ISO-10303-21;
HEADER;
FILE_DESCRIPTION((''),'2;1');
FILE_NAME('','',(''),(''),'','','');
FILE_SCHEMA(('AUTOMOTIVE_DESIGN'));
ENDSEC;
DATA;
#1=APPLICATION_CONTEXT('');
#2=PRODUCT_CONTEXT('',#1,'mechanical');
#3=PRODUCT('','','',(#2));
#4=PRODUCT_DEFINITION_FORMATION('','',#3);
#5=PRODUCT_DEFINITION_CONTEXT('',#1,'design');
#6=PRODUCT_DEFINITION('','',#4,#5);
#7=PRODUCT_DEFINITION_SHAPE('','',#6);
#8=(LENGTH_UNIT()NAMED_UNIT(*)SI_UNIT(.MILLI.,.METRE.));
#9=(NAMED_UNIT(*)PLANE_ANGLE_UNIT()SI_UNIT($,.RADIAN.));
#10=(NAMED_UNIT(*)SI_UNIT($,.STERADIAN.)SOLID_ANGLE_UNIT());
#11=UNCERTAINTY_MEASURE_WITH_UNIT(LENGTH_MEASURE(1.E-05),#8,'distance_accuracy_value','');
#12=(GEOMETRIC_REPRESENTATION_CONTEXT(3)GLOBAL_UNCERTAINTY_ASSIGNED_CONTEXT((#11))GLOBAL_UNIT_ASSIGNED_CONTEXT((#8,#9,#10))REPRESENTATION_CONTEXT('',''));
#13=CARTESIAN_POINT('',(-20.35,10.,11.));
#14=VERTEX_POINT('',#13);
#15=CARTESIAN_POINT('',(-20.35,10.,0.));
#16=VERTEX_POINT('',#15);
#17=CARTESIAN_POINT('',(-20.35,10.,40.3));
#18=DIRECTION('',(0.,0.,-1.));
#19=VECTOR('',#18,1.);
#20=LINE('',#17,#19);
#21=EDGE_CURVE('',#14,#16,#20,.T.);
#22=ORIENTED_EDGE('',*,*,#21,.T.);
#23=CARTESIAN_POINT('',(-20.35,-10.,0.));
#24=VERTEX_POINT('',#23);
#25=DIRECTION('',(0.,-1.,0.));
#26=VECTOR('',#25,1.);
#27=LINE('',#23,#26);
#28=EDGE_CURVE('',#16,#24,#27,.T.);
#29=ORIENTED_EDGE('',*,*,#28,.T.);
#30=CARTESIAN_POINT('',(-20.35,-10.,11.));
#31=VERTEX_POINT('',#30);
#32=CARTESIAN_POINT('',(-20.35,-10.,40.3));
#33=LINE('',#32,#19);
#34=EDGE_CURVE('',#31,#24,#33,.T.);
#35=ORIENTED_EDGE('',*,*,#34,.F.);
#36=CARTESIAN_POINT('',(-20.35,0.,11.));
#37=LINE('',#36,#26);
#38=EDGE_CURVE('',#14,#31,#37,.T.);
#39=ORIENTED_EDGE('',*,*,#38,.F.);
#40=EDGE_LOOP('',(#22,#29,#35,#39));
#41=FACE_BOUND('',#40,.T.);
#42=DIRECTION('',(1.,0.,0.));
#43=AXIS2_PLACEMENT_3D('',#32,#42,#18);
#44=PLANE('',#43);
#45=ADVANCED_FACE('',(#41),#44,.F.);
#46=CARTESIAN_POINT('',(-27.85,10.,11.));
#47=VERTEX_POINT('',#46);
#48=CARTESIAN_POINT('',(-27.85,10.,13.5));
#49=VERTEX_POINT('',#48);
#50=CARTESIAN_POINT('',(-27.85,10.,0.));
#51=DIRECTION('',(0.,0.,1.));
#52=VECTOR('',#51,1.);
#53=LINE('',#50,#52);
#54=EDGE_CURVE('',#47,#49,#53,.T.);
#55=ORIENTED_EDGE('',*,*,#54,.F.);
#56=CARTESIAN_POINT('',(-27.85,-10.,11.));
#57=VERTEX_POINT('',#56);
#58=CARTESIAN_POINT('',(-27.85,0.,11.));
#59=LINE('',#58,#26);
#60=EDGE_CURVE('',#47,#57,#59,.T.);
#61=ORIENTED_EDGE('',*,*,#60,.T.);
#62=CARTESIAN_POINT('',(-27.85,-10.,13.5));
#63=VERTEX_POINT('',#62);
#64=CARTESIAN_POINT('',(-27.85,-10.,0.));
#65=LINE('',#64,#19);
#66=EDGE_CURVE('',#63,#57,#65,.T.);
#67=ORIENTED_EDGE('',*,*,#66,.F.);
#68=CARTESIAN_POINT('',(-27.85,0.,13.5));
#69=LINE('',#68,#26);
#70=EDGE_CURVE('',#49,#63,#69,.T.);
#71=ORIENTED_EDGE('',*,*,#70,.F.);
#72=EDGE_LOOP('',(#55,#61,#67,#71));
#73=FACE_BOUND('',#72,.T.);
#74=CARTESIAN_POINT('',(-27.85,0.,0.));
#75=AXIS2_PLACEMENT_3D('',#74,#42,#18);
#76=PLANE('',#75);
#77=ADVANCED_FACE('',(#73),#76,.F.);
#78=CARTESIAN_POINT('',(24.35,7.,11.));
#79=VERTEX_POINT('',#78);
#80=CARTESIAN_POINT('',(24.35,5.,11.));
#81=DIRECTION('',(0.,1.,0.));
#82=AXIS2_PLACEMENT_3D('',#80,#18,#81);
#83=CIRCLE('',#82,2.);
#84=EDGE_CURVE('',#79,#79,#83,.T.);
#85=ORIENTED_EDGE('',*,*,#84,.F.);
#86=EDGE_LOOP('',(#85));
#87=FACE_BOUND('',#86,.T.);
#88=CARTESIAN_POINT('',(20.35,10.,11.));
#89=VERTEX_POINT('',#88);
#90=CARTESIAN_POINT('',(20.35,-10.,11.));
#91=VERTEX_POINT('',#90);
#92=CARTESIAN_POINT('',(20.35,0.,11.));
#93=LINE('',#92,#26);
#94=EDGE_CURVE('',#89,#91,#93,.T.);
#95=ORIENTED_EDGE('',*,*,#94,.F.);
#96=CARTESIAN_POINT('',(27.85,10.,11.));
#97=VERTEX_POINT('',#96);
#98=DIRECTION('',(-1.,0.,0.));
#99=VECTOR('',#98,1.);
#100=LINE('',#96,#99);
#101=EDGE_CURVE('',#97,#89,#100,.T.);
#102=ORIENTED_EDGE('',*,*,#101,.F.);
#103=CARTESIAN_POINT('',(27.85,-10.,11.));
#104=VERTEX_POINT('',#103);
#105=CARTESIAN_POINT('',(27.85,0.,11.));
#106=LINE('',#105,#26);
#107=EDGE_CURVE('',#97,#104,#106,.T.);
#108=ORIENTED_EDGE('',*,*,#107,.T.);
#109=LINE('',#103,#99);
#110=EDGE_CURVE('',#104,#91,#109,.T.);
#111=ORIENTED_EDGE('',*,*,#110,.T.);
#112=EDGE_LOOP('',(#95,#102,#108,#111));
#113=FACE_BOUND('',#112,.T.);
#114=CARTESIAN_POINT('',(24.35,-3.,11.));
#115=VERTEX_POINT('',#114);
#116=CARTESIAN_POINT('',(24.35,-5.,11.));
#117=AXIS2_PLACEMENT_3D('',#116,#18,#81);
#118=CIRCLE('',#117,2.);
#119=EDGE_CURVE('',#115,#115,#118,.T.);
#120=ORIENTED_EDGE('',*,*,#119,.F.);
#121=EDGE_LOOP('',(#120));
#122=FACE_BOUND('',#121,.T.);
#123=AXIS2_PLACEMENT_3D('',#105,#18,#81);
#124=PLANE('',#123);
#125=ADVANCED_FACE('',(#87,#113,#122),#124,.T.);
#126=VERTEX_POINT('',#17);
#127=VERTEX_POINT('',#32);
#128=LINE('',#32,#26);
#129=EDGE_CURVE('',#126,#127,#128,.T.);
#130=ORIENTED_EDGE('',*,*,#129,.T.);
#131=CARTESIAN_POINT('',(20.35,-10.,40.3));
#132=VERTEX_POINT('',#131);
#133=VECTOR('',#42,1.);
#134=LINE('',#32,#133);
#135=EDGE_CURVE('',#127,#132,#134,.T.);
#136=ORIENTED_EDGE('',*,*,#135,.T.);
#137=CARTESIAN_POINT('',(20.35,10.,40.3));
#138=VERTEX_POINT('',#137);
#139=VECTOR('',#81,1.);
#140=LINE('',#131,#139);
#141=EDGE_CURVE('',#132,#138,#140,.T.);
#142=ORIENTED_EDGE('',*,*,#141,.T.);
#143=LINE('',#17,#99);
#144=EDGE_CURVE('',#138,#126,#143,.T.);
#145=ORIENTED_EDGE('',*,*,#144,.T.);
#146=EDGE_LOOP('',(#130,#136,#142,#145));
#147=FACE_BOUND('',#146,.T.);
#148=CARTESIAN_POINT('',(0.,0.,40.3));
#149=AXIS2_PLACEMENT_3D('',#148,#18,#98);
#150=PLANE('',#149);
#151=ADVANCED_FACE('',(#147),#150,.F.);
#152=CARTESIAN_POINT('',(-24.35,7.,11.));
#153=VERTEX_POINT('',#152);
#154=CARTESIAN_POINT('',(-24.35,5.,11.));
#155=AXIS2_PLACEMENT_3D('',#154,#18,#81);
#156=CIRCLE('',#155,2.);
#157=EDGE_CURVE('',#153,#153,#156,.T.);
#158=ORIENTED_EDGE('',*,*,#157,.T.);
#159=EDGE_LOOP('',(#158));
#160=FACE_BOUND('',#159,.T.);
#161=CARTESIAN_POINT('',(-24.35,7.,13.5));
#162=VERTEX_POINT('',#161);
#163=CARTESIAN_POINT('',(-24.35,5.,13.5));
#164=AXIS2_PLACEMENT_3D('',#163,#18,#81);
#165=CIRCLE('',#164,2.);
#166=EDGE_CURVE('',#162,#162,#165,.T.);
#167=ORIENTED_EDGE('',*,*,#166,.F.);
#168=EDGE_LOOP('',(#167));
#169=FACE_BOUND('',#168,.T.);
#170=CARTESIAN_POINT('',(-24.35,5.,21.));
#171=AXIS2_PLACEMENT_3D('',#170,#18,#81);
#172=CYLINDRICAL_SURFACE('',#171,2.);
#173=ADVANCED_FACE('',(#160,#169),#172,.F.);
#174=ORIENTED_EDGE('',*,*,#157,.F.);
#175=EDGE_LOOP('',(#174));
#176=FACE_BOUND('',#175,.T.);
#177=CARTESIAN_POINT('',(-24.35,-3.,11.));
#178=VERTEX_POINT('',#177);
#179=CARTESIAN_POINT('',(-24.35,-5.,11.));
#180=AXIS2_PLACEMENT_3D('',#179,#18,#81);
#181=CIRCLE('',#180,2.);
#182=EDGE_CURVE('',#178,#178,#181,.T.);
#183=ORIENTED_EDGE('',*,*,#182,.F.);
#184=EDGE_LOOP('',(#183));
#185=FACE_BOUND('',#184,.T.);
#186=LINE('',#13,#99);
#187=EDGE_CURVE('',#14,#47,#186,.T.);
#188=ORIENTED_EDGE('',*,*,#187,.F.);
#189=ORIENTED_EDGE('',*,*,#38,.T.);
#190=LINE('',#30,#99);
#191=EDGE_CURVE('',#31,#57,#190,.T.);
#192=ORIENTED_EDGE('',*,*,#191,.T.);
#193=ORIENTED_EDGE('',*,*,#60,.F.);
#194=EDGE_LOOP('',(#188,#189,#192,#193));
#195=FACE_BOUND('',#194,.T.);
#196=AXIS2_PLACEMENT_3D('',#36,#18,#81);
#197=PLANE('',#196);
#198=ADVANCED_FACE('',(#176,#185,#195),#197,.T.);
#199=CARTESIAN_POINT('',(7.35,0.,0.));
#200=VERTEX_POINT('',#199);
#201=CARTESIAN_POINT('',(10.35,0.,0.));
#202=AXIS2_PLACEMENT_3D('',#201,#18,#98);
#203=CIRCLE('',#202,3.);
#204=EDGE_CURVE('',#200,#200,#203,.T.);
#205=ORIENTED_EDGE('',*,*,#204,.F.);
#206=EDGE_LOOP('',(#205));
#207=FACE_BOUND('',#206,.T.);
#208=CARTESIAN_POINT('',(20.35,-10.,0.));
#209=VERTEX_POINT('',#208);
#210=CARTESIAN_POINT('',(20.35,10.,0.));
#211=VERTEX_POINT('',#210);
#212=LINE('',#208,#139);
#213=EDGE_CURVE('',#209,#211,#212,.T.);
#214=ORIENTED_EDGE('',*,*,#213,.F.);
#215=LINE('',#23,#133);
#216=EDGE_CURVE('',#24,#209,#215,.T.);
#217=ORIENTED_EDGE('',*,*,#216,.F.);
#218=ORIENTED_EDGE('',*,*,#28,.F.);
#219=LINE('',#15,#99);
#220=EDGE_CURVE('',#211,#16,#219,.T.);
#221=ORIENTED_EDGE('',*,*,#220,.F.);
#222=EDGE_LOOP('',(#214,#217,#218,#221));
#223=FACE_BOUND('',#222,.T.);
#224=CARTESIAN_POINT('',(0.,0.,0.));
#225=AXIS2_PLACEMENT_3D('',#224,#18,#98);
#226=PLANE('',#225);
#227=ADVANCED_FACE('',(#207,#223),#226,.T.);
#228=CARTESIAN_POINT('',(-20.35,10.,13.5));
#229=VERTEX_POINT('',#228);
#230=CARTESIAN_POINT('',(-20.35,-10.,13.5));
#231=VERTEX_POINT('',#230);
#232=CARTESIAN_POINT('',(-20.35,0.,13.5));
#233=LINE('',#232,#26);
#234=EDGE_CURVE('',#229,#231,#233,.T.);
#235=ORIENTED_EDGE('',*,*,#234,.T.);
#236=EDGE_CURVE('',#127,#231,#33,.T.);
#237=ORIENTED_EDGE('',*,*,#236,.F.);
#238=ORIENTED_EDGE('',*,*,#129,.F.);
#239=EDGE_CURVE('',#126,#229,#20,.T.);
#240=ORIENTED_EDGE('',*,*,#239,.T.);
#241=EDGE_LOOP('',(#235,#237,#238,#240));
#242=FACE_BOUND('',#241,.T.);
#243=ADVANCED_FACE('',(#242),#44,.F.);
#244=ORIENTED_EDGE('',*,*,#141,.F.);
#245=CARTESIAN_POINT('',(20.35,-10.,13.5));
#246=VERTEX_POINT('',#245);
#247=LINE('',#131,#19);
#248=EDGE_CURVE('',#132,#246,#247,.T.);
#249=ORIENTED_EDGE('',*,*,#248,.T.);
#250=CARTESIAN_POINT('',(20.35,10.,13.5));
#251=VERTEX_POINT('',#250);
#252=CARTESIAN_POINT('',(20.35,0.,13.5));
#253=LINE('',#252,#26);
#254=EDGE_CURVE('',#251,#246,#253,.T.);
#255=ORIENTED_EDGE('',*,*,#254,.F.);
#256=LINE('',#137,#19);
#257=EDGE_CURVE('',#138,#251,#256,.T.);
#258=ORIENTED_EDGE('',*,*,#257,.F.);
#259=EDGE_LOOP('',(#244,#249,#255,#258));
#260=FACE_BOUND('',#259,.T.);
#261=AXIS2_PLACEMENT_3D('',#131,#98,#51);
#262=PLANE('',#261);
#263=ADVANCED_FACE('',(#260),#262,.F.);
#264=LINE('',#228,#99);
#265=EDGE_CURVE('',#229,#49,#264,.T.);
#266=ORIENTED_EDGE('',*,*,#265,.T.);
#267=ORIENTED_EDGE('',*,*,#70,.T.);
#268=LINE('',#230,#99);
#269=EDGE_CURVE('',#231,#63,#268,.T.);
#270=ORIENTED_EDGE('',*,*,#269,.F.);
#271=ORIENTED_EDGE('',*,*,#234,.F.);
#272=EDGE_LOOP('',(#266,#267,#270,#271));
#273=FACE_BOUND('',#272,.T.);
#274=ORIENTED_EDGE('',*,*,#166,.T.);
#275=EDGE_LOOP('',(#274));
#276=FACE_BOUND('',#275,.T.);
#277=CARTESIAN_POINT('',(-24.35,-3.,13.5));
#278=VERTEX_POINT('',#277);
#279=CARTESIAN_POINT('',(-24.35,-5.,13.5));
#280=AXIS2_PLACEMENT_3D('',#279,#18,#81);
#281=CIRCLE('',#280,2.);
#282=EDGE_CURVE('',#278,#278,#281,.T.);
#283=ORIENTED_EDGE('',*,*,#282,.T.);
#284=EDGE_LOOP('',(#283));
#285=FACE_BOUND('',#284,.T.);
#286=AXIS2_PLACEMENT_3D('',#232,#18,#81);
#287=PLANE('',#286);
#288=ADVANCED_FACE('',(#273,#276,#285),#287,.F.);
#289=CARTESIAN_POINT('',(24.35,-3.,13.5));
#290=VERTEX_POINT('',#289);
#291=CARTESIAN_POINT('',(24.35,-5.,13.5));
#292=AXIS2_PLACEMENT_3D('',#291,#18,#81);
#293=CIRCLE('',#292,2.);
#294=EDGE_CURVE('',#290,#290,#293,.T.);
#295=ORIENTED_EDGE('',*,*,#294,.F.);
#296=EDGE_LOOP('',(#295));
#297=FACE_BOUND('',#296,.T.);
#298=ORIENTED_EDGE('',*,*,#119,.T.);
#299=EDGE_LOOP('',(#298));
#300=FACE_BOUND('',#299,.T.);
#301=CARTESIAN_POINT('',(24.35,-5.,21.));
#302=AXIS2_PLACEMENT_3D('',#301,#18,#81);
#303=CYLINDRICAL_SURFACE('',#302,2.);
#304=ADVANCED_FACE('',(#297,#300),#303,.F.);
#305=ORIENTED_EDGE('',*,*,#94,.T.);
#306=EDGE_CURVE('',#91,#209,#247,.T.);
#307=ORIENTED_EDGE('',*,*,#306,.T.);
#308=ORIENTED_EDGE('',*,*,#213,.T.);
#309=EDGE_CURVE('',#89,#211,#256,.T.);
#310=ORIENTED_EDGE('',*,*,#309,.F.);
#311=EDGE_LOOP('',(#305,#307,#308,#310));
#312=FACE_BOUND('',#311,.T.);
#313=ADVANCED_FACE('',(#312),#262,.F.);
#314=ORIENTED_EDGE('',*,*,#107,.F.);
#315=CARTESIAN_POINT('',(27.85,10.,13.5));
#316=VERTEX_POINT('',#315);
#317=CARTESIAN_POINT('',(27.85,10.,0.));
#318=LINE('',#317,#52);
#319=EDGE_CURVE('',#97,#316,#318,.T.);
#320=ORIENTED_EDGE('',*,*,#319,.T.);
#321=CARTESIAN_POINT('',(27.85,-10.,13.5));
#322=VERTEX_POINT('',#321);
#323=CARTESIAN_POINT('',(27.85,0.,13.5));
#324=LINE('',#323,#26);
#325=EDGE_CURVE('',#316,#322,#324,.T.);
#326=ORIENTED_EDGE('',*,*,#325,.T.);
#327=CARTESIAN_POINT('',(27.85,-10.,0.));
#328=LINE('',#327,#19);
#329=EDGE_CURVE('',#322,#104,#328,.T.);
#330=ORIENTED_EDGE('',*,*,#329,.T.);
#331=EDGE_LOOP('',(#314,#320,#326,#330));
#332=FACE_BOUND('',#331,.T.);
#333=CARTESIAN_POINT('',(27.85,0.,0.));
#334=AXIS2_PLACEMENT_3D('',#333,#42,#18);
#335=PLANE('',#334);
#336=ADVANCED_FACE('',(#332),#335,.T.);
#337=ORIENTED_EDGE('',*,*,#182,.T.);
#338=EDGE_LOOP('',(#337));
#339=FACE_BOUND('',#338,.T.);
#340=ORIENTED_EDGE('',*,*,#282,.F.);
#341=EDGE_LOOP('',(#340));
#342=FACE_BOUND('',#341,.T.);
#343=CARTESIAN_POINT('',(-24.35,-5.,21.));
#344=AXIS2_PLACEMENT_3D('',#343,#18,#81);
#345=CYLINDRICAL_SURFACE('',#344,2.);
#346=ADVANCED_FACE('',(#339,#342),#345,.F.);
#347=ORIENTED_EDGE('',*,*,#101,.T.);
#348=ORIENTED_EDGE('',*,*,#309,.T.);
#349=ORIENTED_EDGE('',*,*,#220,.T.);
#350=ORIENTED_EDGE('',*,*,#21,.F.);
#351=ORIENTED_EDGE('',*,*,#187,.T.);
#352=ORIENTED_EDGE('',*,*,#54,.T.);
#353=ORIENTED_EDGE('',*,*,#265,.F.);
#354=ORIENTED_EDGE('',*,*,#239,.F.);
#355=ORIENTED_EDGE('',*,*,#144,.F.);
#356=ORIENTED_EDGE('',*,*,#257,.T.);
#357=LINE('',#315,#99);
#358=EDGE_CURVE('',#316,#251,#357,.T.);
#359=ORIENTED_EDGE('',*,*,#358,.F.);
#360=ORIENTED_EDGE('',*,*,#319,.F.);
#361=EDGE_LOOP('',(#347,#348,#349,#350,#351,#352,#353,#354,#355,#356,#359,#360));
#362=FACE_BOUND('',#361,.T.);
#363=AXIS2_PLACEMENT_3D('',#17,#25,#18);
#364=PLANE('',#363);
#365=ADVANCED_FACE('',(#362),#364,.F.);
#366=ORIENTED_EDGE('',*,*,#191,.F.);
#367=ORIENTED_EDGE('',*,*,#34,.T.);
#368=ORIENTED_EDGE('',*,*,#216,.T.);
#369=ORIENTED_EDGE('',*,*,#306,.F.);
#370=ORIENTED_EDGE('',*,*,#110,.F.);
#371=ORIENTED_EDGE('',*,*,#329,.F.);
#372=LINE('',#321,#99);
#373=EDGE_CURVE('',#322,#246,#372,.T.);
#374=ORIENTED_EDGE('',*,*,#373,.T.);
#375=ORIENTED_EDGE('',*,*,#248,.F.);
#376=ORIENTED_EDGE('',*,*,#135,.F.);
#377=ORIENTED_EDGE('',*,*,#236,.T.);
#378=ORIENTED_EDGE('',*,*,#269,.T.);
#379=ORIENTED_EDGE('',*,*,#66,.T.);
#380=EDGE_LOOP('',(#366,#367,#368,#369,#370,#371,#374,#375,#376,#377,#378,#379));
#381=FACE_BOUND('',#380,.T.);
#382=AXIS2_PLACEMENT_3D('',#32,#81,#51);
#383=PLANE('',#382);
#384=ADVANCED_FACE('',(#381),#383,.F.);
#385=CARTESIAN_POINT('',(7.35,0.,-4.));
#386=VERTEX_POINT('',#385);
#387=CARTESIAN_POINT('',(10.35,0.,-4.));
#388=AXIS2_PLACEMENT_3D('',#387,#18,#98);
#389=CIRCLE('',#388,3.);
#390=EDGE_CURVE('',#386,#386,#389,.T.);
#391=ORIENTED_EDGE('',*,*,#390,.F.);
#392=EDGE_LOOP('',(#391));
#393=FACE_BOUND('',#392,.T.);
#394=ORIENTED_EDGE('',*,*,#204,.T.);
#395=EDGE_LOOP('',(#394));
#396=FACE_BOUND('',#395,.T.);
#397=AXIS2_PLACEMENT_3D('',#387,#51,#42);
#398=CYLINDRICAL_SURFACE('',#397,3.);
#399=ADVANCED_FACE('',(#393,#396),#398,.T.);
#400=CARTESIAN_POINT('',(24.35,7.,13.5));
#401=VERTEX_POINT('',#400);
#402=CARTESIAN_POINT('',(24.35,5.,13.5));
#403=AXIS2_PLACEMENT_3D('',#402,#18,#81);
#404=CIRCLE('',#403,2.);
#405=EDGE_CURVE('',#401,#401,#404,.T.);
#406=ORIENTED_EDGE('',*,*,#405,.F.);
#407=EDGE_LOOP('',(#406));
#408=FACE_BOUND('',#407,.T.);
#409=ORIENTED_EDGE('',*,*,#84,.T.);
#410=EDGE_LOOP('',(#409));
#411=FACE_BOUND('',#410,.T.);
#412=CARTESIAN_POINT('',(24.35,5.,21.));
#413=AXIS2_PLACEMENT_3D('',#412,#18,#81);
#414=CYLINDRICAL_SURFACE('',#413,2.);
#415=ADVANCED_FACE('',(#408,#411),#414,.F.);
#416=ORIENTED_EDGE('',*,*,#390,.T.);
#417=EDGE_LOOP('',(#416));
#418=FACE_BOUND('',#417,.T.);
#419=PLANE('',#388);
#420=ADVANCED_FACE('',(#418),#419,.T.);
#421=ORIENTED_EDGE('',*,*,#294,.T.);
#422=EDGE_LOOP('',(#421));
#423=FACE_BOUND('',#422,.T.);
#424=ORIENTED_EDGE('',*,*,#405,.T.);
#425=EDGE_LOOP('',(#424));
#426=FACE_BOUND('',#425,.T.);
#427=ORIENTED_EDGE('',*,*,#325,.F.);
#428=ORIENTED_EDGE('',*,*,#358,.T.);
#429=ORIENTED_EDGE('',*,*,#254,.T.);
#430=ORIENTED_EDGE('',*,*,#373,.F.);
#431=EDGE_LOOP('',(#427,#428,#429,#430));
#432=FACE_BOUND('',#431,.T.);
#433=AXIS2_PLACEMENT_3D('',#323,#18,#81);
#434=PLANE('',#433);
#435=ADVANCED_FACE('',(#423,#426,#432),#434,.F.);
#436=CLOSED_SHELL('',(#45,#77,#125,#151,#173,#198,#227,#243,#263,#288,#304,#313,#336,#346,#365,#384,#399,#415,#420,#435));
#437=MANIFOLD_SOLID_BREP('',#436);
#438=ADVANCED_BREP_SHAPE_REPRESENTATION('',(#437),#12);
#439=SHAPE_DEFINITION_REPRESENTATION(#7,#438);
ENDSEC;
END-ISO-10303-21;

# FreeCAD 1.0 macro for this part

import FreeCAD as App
import Part
import Sketcher
from FreeCAD import Vector

doc = App.newDocument("Part")
body = doc.addObject("PartDesign::Body", "Body")

# Sketch on XY plane
sketch1 = doc.addObject("Sketcher::SketchObject", "Sketch")
body.addObject(sketch1)
sketch1.AttachmentSupport = (doc.XY_Plane, [""])
sketch1.MapMode = "FlatFace"
sketch1.addGeometry([
    Part.LineSegment(Vector(-20.35, 10, 0), Vector(-20.35, -10, 0)),
    Part.LineSegment(Vector(-20.35, -10, 0), Vector(20.35, -10, 0)),
    Part.LineSegment(Vector(20.35, -10, 0), Vector(20.35, 10, 0)),
    Part.LineSegment(Vector(20.35, 10, 0), Vector(-20.35, 10, 0)),
], False)
sketch1.addConstraint([
    Sketcher.Constraint("Coincident", 0, 2, 1, 1),
    Sketcher.Constraint("Coincident", 1, 2, 2, 1),
    Sketcher.Constraint("Coincident", 2, 2, 3, 1),
    Sketcher.Constraint("Coincident", 3, 2, 0, 1),
    Sketcher.Constraint("Vertical", 0),
    Sketcher.Constraint("Horizontal", 1),
    Sketcher.Constraint("Vertical", 2),
    Sketcher.Constraint("Horizontal", 3),
    Sketcher.Constraint("Symmetric", 0, 2, 2, 2, -1, 1),
    Sketcher.Constraint("DistanceY", 0, 2, 0, 1, 20.0),
    Sketcher.Constraint("DistanceX", 1, 1, 1, 2, 40.7),
])
pad1 = doc.addObject("PartDesign::Pad", "Pad")
body.addObject(pad1)
pad1.Profile = sketch1
pad1.Length = 40.3

# Sketch on YZ plane
sketch2 = doc.addObject("Sketcher::SketchObject", "Sketch001")
body.addObject(sketch2)
sketch2.AttachmentSupport = (doc.YZ_Plane, [""])
sketch2.MapMode = "FlatFace"
sketch2.AttachmentOffset = App.Placement(Vector(0, 0, 20.35), App.Rotation())
sketch2.addGeometry([
    Part.LineSegment(Vector(10, 13.5, 0), Vector(-10, 13.5, 0)),
    Part.LineSegment(Vector(-10, 13.5, 0), Vector(-10, 11, 0)),
    Part.LineSegment(Vector(-10, 11, 0), Vector(10, 11, 0)),
    Part.LineSegment(Vector(10, 11, 0), Vector(10, 13.5, 0)),
], False)
sketch2.addConstraint([
    Sketcher.Constraint("Coincident", 0, 2, 1, 1),
    Sketcher.Constraint("Coincident", 1, 2, 2, 1),
    Sketcher.Constraint("Coincident", 2, 2, 3, 1),
    Sketcher.Constraint("Coincident", 3, 2, 0, 1),
    Sketcher.Constraint("Horizontal", 0),
    Sketcher.Constraint("Vertical", 1),
    Sketcher.Constraint("Horizontal", 2),
    Sketcher.Constraint("Vertical", 3),
    Sketcher.Constraint("DistanceX", 0, 2, 0, 1, 20.0),
    Sketcher.Constraint("DistanceY", 1, 2, 1, 1, 2.5),
    Sketcher.Constraint("DistanceX", 0, 2, -1, 1, 10.0),
    Sketcher.Constraint("DistanceY", -1, 1, 1, 2, 11.0),
])
pad2 = doc.addObject("PartDesign::Pad", "Pad001")
body.addObject(pad2)
pad2.Profile = sketch2
pad2.Length = 7.5
doc.recompute()

linearpattern = doc.addObject("PartDesign::LinearPattern", "LinearPattern")
body.addObject(linearpattern)
linearpattern.Originals = [pad2]
linearpattern.Direction = (doc.X_Axis, [""])
linearpattern.Mode = "offset"
linearpattern.Offset = 48.2
linearpattern.Occurrences = 2
linearpattern.Reversed = True
body.Tip = linearpattern

# Sketch on XY plane
sketch3 = doc.addObject("Sketcher::SketchObject", "Sketch002")
body.addObject(sketch3)
sketch3.AttachmentSupport = (doc.XY_Plane, [""])
sketch3.MapMode = "FlatFace"
sketch3.addGeometry(Part.Circle(Vector(10.35, 0, 0), Vector(0, 0, 1), 3), False)
sketch3.addConstraint([
    Sketcher.Constraint("PointOnObject", 0, 3, -1),
    Sketcher.Constraint("Diameter", 0, 6.0),
    Sketcher.Constraint("DistanceX", -1, 1, 0, 3, 10.35),
])
pad3 = doc.addObject("PartDesign::Pad", "Pad002")
body.addObject(pad3)
pad3.Profile = sketch3
pad3.Length = 4
pad3.Reversed = True

# Sketch on XY plane
sketch4 = doc.addObject("Sketcher::SketchObject", "Sketch003")
body.addObject(sketch4)
sketch4.AttachmentSupport = (doc.XY_Plane, [""])
sketch4.MapMode = "FlatFace"
sketch4.AttachmentOffset = App.Placement(Vector(0, 0, 11), App.Rotation())
sketch4.addGeometry([
    Part.Circle(Vector(24.35, 5, 0), Vector(0, 0, 1), 2),
    Part.Circle(Vector(24.35, -5, 0), Vector(0, 0, 1), 2),
    Part.Circle(Vector(-24.35, 5, 0), Vector(0, 0, 1), 2),
    Part.Circle(Vector(-24.35, -5, 0), Vector(0, 0, 1), 2),
], False)
sketch4.addConstraint([
    Sketcher.Constraint("Equal", 0, 1),
    Sketcher.Constraint("Equal", 1, 2),
    Sketcher.Constraint("Equal", 2, 3),
    Sketcher.Constraint("Symmetric", 1, 3, 2, 3, -1, 1),
    Sketcher.Constraint("Symmetric", 0, 3, 3, 3, -1, 1),
    Sketcher.Constraint("Symmetric", 0, 3, 2, 3, -2),
    Sketcher.Constraint("Diameter", 0, 4.0),
    Sketcher.Constraint("DistanceY", -1, 1, 0, 3, 5.0),
    Sketcher.Constraint("DistanceX", 2, 3, 0, 3, 48.7),
])
pocket1 = doc.addObject("PartDesign::Pocket", "Pocket")
body.addObject(pocket1)
pocket1.Profile = sketch4
pocket1.Length = 10
pocket1.Reversed = True

doc.recompute()
